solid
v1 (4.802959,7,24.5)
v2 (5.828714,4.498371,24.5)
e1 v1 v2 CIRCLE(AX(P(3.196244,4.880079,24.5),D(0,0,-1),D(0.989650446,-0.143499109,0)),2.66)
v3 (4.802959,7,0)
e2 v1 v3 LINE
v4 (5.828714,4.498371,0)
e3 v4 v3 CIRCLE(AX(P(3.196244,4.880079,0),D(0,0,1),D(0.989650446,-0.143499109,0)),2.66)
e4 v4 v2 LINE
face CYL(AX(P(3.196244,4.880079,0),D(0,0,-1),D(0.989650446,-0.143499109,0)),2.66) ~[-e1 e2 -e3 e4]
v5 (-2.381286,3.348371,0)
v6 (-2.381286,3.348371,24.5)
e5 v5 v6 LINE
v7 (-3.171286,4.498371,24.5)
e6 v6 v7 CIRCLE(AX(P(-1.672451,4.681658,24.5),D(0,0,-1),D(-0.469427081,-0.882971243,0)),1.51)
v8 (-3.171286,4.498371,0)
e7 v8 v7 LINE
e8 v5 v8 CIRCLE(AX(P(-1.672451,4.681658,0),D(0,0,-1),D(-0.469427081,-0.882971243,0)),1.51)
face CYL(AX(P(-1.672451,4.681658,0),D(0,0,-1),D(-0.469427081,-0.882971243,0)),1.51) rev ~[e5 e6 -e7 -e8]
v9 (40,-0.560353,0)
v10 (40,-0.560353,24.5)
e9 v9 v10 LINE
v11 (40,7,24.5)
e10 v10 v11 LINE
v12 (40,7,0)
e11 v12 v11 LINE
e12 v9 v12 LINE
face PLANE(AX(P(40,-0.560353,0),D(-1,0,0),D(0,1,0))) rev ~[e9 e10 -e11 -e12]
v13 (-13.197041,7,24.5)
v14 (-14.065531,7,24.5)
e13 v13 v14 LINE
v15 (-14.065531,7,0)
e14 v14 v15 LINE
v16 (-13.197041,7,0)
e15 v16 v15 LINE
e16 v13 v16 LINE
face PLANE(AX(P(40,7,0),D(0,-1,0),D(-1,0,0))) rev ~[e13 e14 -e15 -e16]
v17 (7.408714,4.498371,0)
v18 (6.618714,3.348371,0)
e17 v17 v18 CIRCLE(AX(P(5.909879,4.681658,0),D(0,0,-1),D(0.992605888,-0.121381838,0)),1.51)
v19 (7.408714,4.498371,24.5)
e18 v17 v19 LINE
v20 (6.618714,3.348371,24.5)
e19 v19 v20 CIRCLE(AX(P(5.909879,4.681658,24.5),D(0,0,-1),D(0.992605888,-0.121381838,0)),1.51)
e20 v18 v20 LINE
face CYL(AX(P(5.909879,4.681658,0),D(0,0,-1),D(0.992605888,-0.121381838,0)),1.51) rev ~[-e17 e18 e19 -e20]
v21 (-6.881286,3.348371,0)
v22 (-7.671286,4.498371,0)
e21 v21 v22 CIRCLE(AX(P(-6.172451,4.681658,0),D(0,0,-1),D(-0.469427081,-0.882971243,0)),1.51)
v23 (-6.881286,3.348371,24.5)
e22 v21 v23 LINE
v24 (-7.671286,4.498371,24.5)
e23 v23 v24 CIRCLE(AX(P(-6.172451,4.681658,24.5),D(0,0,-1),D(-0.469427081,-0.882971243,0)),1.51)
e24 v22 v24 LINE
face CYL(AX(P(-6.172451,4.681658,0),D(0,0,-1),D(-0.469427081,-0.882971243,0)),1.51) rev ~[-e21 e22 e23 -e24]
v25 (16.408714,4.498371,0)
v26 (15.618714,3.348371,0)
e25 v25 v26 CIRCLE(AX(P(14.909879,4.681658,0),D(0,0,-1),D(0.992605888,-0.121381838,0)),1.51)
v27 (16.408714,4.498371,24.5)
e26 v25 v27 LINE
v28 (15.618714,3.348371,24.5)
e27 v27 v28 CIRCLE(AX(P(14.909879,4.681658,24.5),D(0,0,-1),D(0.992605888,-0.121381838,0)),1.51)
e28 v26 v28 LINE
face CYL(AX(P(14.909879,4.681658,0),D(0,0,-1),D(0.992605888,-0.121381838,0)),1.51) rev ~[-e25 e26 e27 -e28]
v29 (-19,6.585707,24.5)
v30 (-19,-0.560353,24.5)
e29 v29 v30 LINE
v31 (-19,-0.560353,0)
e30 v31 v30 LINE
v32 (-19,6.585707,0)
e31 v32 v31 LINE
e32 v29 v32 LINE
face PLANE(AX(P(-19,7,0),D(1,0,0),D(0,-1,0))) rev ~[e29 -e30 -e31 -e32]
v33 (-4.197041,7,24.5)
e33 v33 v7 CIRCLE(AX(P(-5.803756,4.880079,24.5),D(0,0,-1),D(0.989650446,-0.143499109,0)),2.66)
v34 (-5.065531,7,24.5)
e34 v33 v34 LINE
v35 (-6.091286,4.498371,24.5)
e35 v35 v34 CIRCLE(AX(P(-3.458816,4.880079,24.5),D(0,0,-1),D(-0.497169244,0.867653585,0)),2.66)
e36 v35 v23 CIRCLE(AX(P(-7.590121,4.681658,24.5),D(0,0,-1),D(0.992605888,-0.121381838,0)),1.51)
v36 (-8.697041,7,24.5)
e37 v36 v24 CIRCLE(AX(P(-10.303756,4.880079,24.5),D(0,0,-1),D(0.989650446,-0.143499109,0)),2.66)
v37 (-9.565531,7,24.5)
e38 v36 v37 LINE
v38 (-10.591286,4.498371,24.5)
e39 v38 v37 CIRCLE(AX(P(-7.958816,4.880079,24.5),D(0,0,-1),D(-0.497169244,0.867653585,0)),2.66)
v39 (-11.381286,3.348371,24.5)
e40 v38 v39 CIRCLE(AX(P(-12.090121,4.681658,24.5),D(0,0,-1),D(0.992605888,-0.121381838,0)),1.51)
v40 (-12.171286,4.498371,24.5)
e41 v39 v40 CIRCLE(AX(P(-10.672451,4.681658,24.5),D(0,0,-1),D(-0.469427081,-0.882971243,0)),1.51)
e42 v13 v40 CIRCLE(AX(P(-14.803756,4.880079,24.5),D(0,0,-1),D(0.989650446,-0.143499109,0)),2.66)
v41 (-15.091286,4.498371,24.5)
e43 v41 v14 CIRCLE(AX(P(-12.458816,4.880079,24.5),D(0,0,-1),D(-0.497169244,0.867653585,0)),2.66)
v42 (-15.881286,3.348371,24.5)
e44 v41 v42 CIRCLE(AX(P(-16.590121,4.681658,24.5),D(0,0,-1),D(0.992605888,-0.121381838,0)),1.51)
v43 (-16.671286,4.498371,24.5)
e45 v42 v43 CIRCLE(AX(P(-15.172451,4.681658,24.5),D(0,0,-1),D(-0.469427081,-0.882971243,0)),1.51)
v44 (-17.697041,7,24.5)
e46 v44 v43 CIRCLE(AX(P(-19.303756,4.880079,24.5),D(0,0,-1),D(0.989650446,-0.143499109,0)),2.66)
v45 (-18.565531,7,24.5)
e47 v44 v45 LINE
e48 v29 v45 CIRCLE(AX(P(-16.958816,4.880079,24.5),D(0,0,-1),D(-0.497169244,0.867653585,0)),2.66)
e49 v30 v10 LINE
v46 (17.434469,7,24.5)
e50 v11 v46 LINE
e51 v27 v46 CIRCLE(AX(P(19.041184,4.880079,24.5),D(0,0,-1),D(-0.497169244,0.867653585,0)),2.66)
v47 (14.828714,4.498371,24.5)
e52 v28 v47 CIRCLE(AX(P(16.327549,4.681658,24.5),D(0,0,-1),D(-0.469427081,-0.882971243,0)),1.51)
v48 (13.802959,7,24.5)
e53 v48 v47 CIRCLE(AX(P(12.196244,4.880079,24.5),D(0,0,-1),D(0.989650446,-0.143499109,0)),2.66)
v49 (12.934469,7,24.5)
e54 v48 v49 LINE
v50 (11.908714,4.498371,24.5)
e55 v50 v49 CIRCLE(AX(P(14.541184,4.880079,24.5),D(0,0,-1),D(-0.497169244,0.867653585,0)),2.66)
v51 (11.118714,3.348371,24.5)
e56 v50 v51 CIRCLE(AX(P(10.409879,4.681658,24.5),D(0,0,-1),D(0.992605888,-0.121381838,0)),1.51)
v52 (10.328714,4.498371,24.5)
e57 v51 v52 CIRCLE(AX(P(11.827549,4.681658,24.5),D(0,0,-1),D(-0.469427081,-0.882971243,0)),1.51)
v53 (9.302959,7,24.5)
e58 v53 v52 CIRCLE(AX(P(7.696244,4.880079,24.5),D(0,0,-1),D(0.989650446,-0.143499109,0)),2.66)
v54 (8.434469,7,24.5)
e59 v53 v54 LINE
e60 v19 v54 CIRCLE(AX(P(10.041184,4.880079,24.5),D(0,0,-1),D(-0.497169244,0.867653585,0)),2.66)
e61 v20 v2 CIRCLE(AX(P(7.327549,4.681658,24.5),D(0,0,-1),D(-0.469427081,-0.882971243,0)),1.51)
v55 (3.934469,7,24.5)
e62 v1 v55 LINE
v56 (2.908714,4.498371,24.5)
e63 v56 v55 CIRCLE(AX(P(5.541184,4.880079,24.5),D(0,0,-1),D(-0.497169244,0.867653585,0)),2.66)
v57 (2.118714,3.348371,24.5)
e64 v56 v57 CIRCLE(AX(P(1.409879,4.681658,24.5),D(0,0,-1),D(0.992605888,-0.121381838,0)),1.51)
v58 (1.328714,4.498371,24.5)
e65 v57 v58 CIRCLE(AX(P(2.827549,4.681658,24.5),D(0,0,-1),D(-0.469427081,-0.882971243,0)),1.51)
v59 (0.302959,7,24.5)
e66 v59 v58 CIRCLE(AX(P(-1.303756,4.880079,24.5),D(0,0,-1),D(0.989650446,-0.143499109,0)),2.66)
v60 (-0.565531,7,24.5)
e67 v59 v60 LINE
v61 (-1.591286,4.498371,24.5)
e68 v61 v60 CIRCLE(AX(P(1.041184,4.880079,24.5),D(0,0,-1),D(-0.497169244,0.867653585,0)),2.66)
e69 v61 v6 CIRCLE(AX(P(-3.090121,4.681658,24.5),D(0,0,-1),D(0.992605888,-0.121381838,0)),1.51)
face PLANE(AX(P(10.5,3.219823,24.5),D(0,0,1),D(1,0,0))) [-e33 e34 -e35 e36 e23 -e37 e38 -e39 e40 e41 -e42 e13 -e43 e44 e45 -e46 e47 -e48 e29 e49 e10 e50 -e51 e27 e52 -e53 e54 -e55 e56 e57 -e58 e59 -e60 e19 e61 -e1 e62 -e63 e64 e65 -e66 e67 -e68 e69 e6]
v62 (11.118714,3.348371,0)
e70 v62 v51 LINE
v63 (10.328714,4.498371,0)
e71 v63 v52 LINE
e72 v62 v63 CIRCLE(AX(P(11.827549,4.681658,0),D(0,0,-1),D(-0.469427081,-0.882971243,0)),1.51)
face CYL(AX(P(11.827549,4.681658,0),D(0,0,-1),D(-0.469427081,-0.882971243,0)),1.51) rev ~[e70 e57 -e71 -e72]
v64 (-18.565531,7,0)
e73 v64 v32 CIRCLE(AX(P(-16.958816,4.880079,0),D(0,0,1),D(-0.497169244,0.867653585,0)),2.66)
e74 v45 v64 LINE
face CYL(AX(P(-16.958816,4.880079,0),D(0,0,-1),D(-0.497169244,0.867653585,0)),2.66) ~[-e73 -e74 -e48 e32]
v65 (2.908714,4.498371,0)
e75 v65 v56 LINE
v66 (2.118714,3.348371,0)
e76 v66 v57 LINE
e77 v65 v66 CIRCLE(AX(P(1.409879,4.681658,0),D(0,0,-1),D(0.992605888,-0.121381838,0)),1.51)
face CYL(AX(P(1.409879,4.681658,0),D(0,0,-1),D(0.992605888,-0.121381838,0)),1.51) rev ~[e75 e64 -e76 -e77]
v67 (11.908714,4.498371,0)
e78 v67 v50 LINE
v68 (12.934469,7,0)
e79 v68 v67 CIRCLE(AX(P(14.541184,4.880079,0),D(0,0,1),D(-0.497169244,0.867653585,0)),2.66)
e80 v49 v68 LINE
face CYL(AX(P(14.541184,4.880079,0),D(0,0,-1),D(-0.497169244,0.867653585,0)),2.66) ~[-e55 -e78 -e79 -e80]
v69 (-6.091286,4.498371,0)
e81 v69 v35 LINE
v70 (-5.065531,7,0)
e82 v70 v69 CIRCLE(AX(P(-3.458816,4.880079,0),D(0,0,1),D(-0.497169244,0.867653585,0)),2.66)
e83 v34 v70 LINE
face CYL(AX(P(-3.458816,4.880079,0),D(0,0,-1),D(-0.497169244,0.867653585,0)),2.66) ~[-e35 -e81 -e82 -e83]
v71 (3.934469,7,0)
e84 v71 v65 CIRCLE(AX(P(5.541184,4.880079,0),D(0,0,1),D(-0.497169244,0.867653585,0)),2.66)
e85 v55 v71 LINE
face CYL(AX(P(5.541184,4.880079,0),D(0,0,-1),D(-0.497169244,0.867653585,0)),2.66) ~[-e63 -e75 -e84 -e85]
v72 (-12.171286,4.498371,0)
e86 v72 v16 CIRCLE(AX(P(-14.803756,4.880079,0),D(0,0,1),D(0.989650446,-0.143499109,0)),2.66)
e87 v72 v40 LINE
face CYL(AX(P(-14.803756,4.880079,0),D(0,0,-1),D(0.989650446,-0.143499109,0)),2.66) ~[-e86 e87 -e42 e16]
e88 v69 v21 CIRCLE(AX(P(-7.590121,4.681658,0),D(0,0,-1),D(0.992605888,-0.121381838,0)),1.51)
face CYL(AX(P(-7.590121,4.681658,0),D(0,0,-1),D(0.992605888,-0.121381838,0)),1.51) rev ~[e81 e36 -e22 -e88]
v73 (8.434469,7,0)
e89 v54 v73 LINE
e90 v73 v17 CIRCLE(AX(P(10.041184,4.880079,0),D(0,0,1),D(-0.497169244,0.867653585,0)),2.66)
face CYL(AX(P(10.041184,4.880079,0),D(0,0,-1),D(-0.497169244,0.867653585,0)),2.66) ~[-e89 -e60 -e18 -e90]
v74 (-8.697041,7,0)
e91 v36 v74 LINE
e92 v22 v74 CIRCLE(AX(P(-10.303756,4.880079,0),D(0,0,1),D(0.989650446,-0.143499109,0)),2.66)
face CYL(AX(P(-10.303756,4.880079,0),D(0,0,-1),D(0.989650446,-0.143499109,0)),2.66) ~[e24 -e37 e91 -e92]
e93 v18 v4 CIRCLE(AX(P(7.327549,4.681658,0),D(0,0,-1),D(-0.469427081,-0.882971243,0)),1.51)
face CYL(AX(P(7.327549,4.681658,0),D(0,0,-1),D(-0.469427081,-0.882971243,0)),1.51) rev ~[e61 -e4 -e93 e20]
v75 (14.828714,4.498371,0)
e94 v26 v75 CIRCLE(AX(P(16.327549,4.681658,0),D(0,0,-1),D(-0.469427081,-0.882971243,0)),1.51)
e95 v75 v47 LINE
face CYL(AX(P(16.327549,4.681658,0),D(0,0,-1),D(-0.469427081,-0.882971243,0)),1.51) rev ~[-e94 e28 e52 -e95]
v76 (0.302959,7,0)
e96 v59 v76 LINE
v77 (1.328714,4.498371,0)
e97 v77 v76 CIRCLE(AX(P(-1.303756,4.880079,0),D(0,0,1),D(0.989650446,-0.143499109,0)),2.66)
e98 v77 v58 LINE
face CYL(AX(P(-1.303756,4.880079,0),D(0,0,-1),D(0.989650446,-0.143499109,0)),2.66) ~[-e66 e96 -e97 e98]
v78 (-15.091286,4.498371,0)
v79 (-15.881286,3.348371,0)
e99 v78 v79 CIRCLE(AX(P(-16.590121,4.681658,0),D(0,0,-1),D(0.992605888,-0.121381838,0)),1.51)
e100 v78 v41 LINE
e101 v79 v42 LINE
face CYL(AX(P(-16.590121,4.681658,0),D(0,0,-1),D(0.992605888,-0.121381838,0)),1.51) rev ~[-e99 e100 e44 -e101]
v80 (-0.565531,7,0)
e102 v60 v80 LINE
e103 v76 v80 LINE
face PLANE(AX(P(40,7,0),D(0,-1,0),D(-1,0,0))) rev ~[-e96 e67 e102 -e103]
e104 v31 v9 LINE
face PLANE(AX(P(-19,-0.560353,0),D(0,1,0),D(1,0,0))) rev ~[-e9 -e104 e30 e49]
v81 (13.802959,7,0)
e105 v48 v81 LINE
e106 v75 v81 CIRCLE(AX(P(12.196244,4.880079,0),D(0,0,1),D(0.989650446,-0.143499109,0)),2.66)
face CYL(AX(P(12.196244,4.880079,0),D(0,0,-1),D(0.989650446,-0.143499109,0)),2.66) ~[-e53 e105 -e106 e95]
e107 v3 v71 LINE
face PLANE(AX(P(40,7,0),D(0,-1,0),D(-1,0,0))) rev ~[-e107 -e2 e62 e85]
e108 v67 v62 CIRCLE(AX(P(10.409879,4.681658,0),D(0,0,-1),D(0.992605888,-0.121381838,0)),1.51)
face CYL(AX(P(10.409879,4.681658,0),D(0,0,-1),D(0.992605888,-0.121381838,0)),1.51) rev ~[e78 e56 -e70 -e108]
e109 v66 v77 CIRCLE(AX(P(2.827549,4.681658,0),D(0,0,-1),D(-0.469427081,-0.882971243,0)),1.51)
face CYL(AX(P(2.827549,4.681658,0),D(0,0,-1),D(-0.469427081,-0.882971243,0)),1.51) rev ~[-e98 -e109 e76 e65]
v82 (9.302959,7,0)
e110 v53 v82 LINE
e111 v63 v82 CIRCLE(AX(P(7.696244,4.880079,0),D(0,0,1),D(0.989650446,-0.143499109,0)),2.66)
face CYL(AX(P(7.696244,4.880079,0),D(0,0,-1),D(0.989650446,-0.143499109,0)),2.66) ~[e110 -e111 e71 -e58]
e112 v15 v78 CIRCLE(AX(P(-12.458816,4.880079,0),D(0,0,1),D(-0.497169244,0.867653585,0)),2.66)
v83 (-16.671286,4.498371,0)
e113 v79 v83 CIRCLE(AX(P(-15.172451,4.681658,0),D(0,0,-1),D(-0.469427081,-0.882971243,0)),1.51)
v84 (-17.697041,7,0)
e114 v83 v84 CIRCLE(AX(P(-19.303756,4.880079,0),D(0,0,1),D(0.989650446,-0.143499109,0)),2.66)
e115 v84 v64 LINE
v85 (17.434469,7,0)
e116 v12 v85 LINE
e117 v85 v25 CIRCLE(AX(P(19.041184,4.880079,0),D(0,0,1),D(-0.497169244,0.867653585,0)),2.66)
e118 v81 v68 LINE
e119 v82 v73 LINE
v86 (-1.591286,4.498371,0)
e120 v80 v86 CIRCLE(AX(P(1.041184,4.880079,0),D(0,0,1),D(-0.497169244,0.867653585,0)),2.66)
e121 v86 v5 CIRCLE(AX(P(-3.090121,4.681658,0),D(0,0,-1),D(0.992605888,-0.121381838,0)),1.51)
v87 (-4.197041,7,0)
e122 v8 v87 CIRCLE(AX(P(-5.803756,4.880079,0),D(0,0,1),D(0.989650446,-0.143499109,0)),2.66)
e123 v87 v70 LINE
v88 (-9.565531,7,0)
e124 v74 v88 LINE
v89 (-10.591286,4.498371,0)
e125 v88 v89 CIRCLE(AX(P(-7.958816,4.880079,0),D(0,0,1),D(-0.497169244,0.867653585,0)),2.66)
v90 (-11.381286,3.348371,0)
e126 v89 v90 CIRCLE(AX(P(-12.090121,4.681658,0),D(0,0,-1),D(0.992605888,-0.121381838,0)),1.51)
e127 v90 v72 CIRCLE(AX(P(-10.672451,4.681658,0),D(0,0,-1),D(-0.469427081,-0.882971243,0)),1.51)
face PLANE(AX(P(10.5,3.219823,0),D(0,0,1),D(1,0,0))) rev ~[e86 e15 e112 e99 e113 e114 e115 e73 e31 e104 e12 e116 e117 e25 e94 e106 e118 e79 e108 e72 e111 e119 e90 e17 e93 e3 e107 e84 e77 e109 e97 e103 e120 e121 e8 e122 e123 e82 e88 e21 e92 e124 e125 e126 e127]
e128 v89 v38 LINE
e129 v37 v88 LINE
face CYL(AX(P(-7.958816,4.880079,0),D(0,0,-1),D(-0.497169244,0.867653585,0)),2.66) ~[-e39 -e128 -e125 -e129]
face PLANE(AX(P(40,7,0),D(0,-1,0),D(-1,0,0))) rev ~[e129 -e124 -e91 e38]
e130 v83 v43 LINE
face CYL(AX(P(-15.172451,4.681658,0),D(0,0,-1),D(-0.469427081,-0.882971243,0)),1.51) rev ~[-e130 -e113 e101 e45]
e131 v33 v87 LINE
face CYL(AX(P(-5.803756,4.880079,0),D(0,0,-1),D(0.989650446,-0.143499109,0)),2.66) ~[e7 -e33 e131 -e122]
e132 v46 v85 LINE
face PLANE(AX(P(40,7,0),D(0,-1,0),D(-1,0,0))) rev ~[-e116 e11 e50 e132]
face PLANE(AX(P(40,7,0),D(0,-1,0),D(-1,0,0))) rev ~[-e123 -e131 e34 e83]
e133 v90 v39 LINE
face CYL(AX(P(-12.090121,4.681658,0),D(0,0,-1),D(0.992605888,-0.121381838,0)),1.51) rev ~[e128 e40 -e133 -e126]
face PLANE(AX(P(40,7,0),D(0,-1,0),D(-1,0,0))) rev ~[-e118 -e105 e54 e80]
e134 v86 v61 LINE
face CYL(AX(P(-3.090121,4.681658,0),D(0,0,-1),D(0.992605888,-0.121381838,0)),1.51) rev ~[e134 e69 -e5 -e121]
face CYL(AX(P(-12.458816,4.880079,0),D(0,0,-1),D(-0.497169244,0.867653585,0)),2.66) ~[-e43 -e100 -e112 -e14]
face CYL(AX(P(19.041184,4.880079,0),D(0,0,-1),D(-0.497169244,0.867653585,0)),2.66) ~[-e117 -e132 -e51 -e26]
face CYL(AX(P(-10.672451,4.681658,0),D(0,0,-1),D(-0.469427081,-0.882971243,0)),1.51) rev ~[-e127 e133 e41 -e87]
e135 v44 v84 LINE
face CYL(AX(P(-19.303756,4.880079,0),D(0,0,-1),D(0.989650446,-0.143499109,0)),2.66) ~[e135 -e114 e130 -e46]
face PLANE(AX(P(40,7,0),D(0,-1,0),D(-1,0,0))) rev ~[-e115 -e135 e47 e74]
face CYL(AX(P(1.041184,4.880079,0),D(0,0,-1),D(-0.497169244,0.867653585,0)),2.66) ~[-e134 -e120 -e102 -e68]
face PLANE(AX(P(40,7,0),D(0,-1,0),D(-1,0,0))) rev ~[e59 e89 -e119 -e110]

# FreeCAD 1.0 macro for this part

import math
import FreeCAD as App
import Part
import Sketcher
from FreeCAD import Vector


def add_polygon(sketch, points):
    """Adds a closed chain of lines whose ends are joined by coincident constraints."""
    first, n = sketch.GeometryCount, len(points)
    for a, b in zip(points, points[1:] + points[:1]):
        sketch.addGeometry(Part.LineSegment(App.Vector(*a, 0), App.Vector(*b, 0)), False)
    for i in range(n):
        sketch.addConstraint(Sketcher.Constraint("Coincident", first + i, 2, first + (i + 1) % n, 1))

doc = App.newDocument("Part")
body = doc.addObject("PartDesign::Body", "Body")

sketch1 = doc.addObject("Sketcher::SketchObject", "Sketch")
body.addObject(sketch1)
sketch1.AttachmentSupport = (doc.XY_Plane, [""])
sketch1.MapMode = "FlatFace"
add_polygon(sketch1, [(-19, 7), (-19, -0.560353), (40, -0.560353), (40, 7)])
sketch1.addConstraint([
    Sketcher.Constraint("Vertical", 0),
    Sketcher.Constraint("Horizontal", 1),
    Sketcher.Constraint("Vertical", 2),
    Sketcher.Constraint("Horizontal", 3),
    Sketcher.Constraint("DistanceX", 1, 1, 1, 2, 59.0),
    Sketcher.Constraint("DistanceX", 0, 2, -1, 1, 19.0),
    Sketcher.Constraint("DistanceY", -1, 1, 2, 2, 7.0),
    Sketcher.Constraint("DistanceY", 0, 2, 0, 1, 7.560353),
])
pad1 = doc.addObject("PartDesign::Pad", "Pad")
body.addObject(pad1)
pad1.Profile = sketch1
pad1.Length = 24.5

sketch2 = doc.addObject("Sketcher::SketchObject", "Sketch001")
body.addObject(sketch2)
sketch2.AttachmentSupport = (doc.XY_Plane, [""])
sketch2.MapMode = "FlatFace"
sketch2.addGeometry([
    Part.ArcOfCircle(Part.Circle(Vector(-6.172451, 4.681658, 0), Vector(0, 0, 1), 1.51), math.radians(-173.028141), math.radians(-117.997114)),
    Part.ArcOfCircle(Part.Circle(Vector(-7.590121, 4.681658, 0), Vector(0, 0, 1), 1.51), math.radians(-62.002887), math.radians(-6.971859)),
    Part.ArcOfCircle(Part.Circle(Vector(-3.458816, 4.880079, 0), Vector(0, 0, 1), 2.66), math.radians(119.812895), math.radians(188.250376)),
    Part.ArcOfCircle(Part.Circle(Vector(-6.881286, 3.635342, 0), Vector(0, 0, 1), 4.126941), math.radians(59.412644), math.radians(120.587356)),
    Part.ArcOfCircle(Part.Circle(Vector(-10.303756, 4.880079, 0), Vector(0, 0, 1), 2.66), math.radians(-8.250376), math.radians(60.187105)),
], False)
sketch2.addConstraint([
    Sketcher.Constraint("Coincident", 0, 2, 1, 1),
    Sketcher.Constraint("Coincident", 1, 2, 2, 2),
    Sketcher.Constraint("Coincident", 2, 1, 3, 1),
    Sketcher.Constraint("Coincident", 3, 2, 4, 2),
    Sketcher.Constraint("Coincident", 4, 1, 0, 1),
    Sketcher.Constraint("Equal", 0, 1),
    Sketcher.Constraint("Equal", 2, 4),
    Sketcher.Constraint("Horizontal", 0, 3, 1, 3),
    Sketcher.Constraint("Horizontal", 2, 3, 4, 3),
    Sketcher.Constraint("Horizontal", 2, 1, 3, 2),
    Sketcher.Constraint("Horizontal", 1, 2, 4, 1),
    Sketcher.Constraint("Radius", 0, 1.51),
    Sketcher.Constraint("Radius", 2, 2.66),
    Sketcher.Constraint("DistanceX", 3, 3, 2, 1, 2.1),
    Sketcher.Constraint("Radius", 3, 4.126941),
    Sketcher.Constraint("DistanceX", 3, 3, 1, 2, 0.79),
    Sketcher.Constraint("DistanceY", 0, 2, 1, 2, 1.15),
    Sketcher.Constraint("DistanceX", 0, 3, -1, 1, 6.172451),
    Sketcher.Constraint("DistanceY", -1, 1, 2, 3, 4.880079),
    Sketcher.Constraint("DistanceY", -1, 1, 0, 2, 3.348371),
])
pocket1 = doc.addObject("PartDesign::Pocket", "Pocket")
body.addObject(pocket1)
pocket1.Profile = sketch2
pocket1.Length = 26.12
pocket1.Reversed = True
doc.recompute()

linearpattern = doc.addObject("PartDesign::LinearPattern", "LinearPattern")
body.addObject(linearpattern)
linearpattern.Originals = [pocket1]
linearpattern.Direction = (doc.X_Axis, [""])
linearpattern.Mode = "offset"
linearpattern.Offset = 4.5
linearpattern.Occurrences = 4
linearpattern.Reversed = True
body.Tip = linearpattern
doc.recompute()

linearpattern2 = doc.addObject("PartDesign::LinearPattern", "LinearPattern001")
body.addObject(linearpattern2)
linearpattern2.Originals = [pocket1]
linearpattern2.Direction = (doc.X_Axis, [""])
linearpattern2.Mode = "offset"
linearpattern2.Offset = 4.5
linearpattern2.Occurrences = 6
body.Tip = linearpattern2

doc.recompute()
